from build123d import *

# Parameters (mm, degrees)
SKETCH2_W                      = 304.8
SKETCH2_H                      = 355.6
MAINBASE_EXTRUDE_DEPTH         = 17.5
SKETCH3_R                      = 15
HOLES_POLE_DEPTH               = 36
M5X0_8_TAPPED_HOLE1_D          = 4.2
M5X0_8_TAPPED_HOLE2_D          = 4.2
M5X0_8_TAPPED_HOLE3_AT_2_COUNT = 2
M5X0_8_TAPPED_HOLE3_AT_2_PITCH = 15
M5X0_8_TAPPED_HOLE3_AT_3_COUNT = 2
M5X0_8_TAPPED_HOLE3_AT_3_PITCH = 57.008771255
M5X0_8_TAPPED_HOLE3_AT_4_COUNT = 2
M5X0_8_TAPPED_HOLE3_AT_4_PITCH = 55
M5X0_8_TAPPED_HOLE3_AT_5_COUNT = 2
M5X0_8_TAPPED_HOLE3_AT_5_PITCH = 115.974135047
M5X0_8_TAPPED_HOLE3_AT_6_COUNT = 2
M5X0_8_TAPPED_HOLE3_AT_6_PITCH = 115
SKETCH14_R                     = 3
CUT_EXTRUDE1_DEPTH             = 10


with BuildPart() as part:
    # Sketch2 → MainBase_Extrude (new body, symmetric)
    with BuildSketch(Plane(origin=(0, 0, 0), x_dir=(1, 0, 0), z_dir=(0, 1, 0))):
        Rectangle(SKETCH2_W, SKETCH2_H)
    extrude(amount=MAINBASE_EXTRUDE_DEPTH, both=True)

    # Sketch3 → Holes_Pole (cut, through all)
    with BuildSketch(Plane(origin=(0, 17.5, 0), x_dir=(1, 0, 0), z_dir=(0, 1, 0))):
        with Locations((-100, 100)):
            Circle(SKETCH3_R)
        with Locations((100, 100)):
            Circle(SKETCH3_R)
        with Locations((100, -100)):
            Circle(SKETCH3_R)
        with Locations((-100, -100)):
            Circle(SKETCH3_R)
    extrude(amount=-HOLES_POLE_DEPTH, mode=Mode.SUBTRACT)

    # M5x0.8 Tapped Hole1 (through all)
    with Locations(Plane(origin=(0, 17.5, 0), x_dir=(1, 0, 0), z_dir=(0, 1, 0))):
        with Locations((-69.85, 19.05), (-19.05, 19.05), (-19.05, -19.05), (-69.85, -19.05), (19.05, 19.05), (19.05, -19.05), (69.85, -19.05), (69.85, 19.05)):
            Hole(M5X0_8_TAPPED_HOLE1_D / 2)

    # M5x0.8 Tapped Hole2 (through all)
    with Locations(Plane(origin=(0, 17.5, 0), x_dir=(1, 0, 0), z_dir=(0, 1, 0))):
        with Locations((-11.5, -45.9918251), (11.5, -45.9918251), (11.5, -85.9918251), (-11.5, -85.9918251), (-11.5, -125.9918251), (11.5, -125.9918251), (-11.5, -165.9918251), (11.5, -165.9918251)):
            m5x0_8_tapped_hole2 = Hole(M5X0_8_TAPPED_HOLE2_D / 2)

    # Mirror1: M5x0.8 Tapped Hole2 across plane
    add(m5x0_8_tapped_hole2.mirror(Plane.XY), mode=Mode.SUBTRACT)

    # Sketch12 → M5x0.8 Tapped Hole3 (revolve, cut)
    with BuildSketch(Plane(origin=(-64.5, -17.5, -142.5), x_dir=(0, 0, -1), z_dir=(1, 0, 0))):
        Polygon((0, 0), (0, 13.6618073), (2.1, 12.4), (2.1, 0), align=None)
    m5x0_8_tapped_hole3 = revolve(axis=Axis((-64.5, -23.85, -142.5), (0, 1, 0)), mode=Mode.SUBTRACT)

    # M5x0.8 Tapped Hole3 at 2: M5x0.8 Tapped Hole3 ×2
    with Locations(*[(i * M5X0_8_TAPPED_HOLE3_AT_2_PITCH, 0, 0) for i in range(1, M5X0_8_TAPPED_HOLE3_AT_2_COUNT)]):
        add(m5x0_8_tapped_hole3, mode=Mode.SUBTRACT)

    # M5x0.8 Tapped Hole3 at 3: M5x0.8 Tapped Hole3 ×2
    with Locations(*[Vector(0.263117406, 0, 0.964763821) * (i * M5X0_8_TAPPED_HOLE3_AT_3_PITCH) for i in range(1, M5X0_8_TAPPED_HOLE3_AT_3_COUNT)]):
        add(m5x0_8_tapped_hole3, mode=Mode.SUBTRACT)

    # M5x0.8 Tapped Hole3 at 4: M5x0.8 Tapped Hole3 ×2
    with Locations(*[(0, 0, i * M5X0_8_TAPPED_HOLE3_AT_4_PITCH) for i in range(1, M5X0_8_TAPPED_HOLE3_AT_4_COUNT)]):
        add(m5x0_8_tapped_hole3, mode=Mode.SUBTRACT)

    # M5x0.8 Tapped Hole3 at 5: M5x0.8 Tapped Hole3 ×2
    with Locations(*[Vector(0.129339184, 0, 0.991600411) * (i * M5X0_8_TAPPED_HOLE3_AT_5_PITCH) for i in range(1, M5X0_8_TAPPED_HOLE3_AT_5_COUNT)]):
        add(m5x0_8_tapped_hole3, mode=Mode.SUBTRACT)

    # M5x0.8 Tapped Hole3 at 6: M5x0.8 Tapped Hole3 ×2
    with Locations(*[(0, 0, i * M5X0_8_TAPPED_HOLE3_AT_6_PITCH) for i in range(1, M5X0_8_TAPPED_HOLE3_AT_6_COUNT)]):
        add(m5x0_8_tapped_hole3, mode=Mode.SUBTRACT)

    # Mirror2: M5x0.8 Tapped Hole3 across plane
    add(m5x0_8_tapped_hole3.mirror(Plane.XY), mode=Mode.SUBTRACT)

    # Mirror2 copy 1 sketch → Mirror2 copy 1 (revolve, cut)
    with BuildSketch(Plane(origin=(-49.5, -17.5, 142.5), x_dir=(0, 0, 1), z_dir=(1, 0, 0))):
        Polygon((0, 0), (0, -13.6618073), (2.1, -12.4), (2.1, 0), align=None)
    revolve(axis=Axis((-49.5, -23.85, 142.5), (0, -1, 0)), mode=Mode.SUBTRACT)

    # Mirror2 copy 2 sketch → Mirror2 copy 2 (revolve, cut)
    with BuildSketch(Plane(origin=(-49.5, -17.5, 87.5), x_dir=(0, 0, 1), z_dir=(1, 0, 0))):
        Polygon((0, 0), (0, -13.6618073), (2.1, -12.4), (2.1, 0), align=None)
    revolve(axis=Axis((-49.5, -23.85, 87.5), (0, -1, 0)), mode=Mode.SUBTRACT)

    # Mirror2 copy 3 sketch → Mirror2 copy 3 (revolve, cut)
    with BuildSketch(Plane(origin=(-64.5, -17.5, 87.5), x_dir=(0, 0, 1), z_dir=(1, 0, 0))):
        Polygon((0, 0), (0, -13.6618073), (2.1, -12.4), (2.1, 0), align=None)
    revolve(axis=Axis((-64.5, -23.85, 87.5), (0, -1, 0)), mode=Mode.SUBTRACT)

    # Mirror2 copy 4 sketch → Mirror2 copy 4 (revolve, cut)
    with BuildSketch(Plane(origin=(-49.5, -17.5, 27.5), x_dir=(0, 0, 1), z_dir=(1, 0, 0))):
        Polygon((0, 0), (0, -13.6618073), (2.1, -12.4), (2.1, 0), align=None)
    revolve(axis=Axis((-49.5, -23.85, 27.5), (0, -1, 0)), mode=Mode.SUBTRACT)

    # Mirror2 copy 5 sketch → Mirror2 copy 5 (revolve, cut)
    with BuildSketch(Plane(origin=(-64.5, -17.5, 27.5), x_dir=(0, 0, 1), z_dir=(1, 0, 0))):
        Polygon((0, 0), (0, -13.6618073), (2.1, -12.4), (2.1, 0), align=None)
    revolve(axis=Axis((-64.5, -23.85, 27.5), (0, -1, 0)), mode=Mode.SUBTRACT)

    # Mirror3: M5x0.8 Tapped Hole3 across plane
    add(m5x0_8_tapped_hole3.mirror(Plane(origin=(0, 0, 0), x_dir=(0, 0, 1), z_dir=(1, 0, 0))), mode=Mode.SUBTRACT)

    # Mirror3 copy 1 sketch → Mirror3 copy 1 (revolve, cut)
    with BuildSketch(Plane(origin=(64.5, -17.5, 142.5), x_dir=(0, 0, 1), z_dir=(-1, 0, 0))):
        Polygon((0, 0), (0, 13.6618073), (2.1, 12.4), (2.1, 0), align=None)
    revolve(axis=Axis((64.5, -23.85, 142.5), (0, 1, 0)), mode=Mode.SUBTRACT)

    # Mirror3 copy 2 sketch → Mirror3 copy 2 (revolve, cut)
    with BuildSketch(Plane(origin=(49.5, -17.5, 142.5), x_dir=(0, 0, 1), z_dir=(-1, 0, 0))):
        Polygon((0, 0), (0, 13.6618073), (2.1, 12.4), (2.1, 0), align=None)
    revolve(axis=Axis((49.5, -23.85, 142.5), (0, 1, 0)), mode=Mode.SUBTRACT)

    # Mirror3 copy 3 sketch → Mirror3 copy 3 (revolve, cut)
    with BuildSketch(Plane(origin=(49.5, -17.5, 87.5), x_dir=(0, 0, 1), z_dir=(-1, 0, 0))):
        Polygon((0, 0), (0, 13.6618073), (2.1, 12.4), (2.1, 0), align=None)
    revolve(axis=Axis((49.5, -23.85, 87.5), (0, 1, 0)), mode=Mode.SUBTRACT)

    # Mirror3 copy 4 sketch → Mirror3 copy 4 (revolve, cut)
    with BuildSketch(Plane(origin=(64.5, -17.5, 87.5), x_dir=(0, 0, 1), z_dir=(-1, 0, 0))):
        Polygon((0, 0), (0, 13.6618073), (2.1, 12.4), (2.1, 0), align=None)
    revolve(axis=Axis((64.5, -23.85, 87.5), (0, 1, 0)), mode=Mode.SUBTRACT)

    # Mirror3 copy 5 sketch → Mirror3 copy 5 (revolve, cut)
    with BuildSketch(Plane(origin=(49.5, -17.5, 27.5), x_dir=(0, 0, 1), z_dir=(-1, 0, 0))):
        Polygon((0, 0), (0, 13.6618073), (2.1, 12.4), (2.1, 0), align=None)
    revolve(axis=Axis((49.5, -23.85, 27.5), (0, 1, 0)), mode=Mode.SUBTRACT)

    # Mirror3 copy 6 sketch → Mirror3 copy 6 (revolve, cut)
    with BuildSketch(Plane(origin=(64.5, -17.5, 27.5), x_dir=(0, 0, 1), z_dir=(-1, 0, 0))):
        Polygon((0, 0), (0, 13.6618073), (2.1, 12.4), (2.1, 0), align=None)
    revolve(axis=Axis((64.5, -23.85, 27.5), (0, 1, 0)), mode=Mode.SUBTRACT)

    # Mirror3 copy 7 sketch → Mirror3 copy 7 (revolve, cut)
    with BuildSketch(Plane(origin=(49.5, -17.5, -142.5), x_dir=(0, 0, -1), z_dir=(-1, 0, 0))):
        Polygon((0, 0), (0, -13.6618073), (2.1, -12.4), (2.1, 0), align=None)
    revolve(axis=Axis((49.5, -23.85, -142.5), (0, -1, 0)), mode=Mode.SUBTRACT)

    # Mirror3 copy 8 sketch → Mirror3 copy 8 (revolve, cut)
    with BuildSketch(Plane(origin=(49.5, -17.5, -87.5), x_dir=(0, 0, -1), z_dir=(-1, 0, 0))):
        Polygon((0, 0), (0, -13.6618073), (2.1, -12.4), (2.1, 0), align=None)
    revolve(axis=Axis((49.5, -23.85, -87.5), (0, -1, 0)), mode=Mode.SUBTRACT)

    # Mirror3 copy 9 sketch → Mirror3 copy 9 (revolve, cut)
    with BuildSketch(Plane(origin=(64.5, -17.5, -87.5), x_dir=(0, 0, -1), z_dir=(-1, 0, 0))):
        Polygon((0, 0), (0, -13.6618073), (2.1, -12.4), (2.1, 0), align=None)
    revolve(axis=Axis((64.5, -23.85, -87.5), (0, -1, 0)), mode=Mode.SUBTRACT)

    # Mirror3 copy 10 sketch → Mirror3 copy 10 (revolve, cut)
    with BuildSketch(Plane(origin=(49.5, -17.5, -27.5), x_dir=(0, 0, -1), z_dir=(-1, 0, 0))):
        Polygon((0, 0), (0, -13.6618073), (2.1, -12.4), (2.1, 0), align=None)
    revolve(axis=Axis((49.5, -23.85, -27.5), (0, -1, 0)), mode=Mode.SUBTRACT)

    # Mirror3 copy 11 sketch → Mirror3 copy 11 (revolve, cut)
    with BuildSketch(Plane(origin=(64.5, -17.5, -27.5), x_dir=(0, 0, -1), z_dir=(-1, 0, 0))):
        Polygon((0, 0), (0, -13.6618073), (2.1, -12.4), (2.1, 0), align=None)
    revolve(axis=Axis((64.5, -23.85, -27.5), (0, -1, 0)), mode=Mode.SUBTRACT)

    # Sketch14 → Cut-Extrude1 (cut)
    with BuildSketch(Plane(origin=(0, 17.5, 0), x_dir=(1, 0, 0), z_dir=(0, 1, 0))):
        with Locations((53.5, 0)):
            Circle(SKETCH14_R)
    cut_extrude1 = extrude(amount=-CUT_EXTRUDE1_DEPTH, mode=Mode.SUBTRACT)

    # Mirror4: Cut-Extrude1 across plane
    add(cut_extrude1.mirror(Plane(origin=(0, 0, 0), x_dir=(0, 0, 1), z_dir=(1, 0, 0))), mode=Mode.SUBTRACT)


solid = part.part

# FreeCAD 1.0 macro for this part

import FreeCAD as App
import Part
import Sketcher
Q = App.Units.Quantity

doc = App.newDocument("Part")
body = doc.addObject("PartDesign::Body", "Body")

sketch1 = body.newObject("Sketcher::SketchObject", "Sketch")
sketch1.AttachmentSupport = (doc.getObject("XZ_Plane"), [""])
sketch1.MapMode = "FlatFace"
sketch1.addGeometry([
    Part.LineSegment(App.Vector(-152.4, -177.8, 0), App.Vector(-152.4, 177.8, 0)),
    Part.LineSegment(App.Vector(-152.4, 177.8, 0), App.Vector(152.4, 177.8, 0)),
    Part.LineSegment(App.Vector(152.4, 177.8, 0), App.Vector(152.4, -177.8, 0)),
    Part.LineSegment(App.Vector(152.4, -177.8, 0), App.Vector(-152.4, -177.8, 0)),
], False)
sketch1.addConstraint([
    Sketcher.Constraint("Coincident", 0, 2, 1, 1),
    Sketcher.Constraint("Coincident", 1, 2, 2, 1),
    Sketcher.Constraint("Coincident", 2, 2, 3, 1),
    Sketcher.Constraint("Coincident", 3, 2, 0, 1),
    Sketcher.Constraint("Vertical", 0),
    Sketcher.Constraint("Horizontal", 1),
    Sketcher.Constraint("Vertical", 2),
    Sketcher.Constraint("Horizontal", 3),
    Sketcher.Constraint("Symmetric", 0, 2, 2, 2, -1, 1),
    Sketcher.Constraint("DistanceX", 1, 1, 1, 2, Q("304.8 mm")),
    Sketcher.Constraint("DistanceY", 0, 1, 0, 2, Q("355.6 mm")),
])
pad1 = body.newObject("PartDesign::Pad", "Pad")
pad1.Profile = sketch1
pad1.Length = 35
pad1.Midplane = True

sketch2 = body.newObject("Sketcher::SketchObject", "Sketch001")
sketch2.AttachmentSupport = (doc.getObject("XZ_Plane"), [""])
sketch2.MapMode = "FlatFace"
sketch2.AttachmentOffset = App.Placement(App.Vector(0, 0, -17.5), App.Rotation())
sketch2.addGeometry([
    Part.Circle(App.Vector(-100, -100, 0), App.Vector(0, 0, 1), 15),
    Part.Circle(App.Vector(100, -100, 0), App.Vector(0, 0, 1), 15),
    Part.Circle(App.Vector(100, 100, 0), App.Vector(0, 0, 1), 15),
    Part.Circle(App.Vector(-100, 100, 0), App.Vector(0, 0, 1), 15),
], False)
sketch2.addConstraint([
    Sketcher.Constraint("Equal", 0, 1),
    Sketcher.Constraint("Equal", 1, 2),
    Sketcher.Constraint("Equal", 2, 3),
    Sketcher.Constraint("Symmetric", 0, 3, 2, 3, -1, 1),
    Sketcher.Constraint("Symmetric", 1, 3, 3, 3, -1, 1),
    Sketcher.Constraint("Symmetric", 0, 3, 1, 3, -2),
    Sketcher.Constraint("Diameter", 0, Q("30 mm")),
    Sketcher.Constraint("DistanceX", 0, 3, -1, 1, Q("100 mm")),
    Sketcher.Constraint("DistanceY", 0, 3, -1, 1, Q("100 mm")),
])
pocket1 = body.newObject("PartDesign::Pocket", "Pocket")
pocket1.Profile = sketch2
pocket1.Type = "ThroughAll"
pocket1.Reversed = True

sketch3 = body.newObject("Sketcher::SketchObject", "Sketch002")
sketch3.AttachmentSupport = (doc.getObject("XZ_Plane"), [""])
sketch3.MapMode = "FlatFace"
sketch3.AttachmentOffset = App.Placement(App.Vector(0, 0, -17.5), App.Rotation())
sketch3.addGeometry([
    Part.Circle(App.Vector(-69.85, -19.05, 0), App.Vector(0, 0, 1), 2.1),
    Part.Circle(App.Vector(-19.05, -19.05, 0), App.Vector(0, 0, 1), 2.1),
    Part.Circle(App.Vector(-19.05, 19.05, 0), App.Vector(0, 0, 1), 2.1),
    Part.Circle(App.Vector(-69.85, 19.05, 0), App.Vector(0, 0, 1), 2.1),
    Part.Circle(App.Vector(19.05, -19.05, 0), App.Vector(0, 0, 1), 2.1),
    Part.Circle(App.Vector(19.05, 19.05, 0), App.Vector(0, 0, 1), 2.1),
    Part.Circle(App.Vector(69.85, 19.05, 0), App.Vector(0, 0, 1), 2.1),
    Part.Circle(App.Vector(69.85, -19.05, 0), App.Vector(0, 0, 1), 2.1),
], False)
sketch3.addConstraint([
    Sketcher.Constraint("Equal", 0, 1),
    Sketcher.Constraint("Equal", 1, 2),
    Sketcher.Constraint("Equal", 2, 3),
    Sketcher.Constraint("Equal", 3, 4),
    Sketcher.Constraint("Equal", 4, 5),
    Sketcher.Constraint("Equal", 5, 6),
    Sketcher.Constraint("Equal", 6, 7),
    Sketcher.Constraint("Symmetric", 2, 3, 4, 3, -1, 1),
    Sketcher.Constraint("Symmetric", 1, 3, 5, 3, -1, 1),
    Sketcher.Constraint("Symmetric", 0, 3, 6, 3, -1, 1),
    Sketcher.Constraint("Symmetric", 3, 3, 7, 3, -1, 1),
    Sketcher.Constraint("Symmetric", 1, 3, 4, 3, -2),
    Sketcher.Constraint("Symmetric", 3, 3, 6, 3, -2),
    Sketcher.Constraint("Horizontal", 0, 3, 1, 3),
    Sketcher.Constraint("Diameter", 0, Q("4.2 mm")),
    Sketcher.Constraint("DistanceX", 0, 3, 1, 3, Q("50.8 mm")),
    Sketcher.Constraint("DistanceY", 1, 3, 2, 3, Q("38.1 mm")),
    Sketcher.Constraint("DistanceX", 1, 3, 4, 3, Q("38.1 mm")),
])
doc.recompute()
hole = body.newObject("PartDesign::Hole", "Hole")
hole.Profile = sketch3
hole.ThreadType = "None"
hole.Diameter = 4.2
hole.DepthType = "ThroughAll"
hole.Reversed = True

sketch4 = body.newObject("Sketcher::SketchObject", "Sketch003")
sketch4.AttachmentSupport = (doc.getObject("XZ_Plane"), [""])
sketch4.MapMode = "FlatFace"
sketch4.AttachmentOffset = App.Placement(App.Vector(0, 0, -17.5), App.Rotation())
sketch4.addGeometry([
    Part.Circle(App.Vector(-11.5, 45.991825, 0), App.Vector(0, 0, 1), 2.1),
    Part.Circle(App.Vector(11.5, 45.991825, 0), App.Vector(0, 0, 1), 2.1),
    Part.Circle(App.Vector(11.5, 85.991825, 0), App.Vector(0, 0, 1), 2.1),
    Part.Circle(App.Vector(-11.5, 85.991825, 0), App.Vector(0, 0, 1), 2.1),
    Part.Circle(App.Vector(-11.5, 125.991825, 0), App.Vector(0, 0, 1), 2.1),
    Part.Circle(App.Vector(11.5, 125.991825, 0), App.Vector(0, 0, 1), 2.1),
    Part.Circle(App.Vector(-11.5, 165.991825, 0), App.Vector(0, 0, 1), 2.1),
    Part.Circle(App.Vector(11.5, 165.991825, 0), App.Vector(0, 0, 1), 2.1),
], False)
sketch4.addConstraint([
    Sketcher.Constraint("Equal", 0, 1),
    Sketcher.Constraint("Equal", 1, 2),
    Sketcher.Constraint("Equal", 2, 3),
    Sketcher.Constraint("Equal", 3, 4),
    Sketcher.Constraint("Equal", 4, 5),
    Sketcher.Constraint("Equal", 5, 6),
    Sketcher.Constraint("Equal", 6, 7),
    Sketcher.Constraint("Symmetric", 0, 3, 1, 3, -2),
    Sketcher.Constraint("Symmetric", 2, 3, 3, 3, -2),
    Sketcher.Constraint("Symmetric", 4, 3, 5, 3, -2),
    Sketcher.Constraint("Symmetric", 6, 3, 7, 3, -2),
    Sketcher.Constraint("Vertical", 1, 3, 2, 3),
    Sketcher.Constraint("Vertical", 3, 3, 4, 3),
    Sketcher.Constraint("Vertical", 4, 3, 6, 3),
    Sketcher.Constraint("Diameter", 0, Q("4.2 mm")),
    Sketcher.Constraint("DistanceX", 0, 3, 1, 3, Q("23 mm")),
    Sketcher.Constraint("DistanceY", 1, 3, 2, 3, Q("40 mm")),
    Sketcher.Constraint("DistanceY", 3, 3, 4, 3, Q("40 mm")),
    Sketcher.Constraint("DistanceY", 4, 3, 6, 3, Q("40 mm")),
    Sketcher.Constraint("DistanceY", -1, 1, 0, 3, Q("45.991825 mm")),
])
doc.recompute()
hole2 = body.newObject("PartDesign::Hole", "Hole001")
hole2.Profile = sketch4
hole2.ThreadType = "None"
hole2.Diameter = 4.2
hole2.DepthType = "ThroughAll"
hole2.Reversed = True
doc.recompute()

mirrored = body.newObject("PartDesign::Mirrored", "Mirrored")
mirrored.Originals = [hole2]
mirrored.MirrorPlane = (doc.getObject("XY_Plane"), [""])
body.Tip = mirrored

sketch5 = body.newObject("Sketcher::SketchObject", "Sketch004")
sketch5.AttachmentSupport = (doc.getObject("YZ_Plane"), [""])
sketch5.MapMode = "FlatFace"
sketch5.AttachmentOffset = App.Placement(App.Vector(0, 0, -64.5), App.Rotation())
sketch5.addGeometry([
    Part.LineSegment(App.Vector(-3.838193, -142.5, 0), App.Vector(-17.5, -142.5, 0)),
    Part.LineSegment(App.Vector(-17.5, -142.5, 0), App.Vector(-17.5, -144.6, 0)),
    Part.LineSegment(App.Vector(-17.5, -144.6, 0), App.Vector(-5.1, -144.6, 0)),
    Part.LineSegment(App.Vector(-5.1, -144.6, 0), App.Vector(-3.838193, -142.5, 0)),
], False)
sketch5.addGeometry(Part.LineSegment(App.Vector(-17.5, -142.5, 0), App.Vector(-3.838193, -142.5, 0)), True)
sketch5.addConstraint([
    Sketcher.Constraint("Coincident", 0, 2, 1, 1),
    Sketcher.Constraint("Coincident", 1, 2, 2, 1),
    Sketcher.Constraint("Coincident", 2, 2, 3, 1),
    Sketcher.Constraint("Coincident", 3, 2, 0, 1),
    Sketcher.Constraint("Horizontal", 0),
    Sketcher.Constraint("Vertical", 1),
    Sketcher.Constraint("Horizontal", 2),
    Sketcher.Constraint("Horizontal", 4),
    Sketcher.Constraint("Coincident", 4, 1, 0, 2),
    Sketcher.Constraint("Equal", 0, 4),
    Sketcher.Constraint("Angle", 3, Q("59 deg")),
    Sketcher.Constraint("DistanceX", 2, 1, 2, 2, Q("12.4 mm")),
    Sketcher.Constraint("DistanceY", 1, 2, 1, 1, Q("2.1 mm")),
    Sketcher.Constraint("DistanceX", 0, 2, -1, 1, Q("17.5 mm")),
    Sketcher.Constraint("DistanceY", 0, 2, -1, 1, Q("142.5 mm")),
])
groove = body.newObject("PartDesign::Groove", "Groove")
groove.Profile = sketch5
groove.ReferenceAxis = (sketch5, ["Axis0"])
groove.Angle = 360
doc.recompute()

linearpattern = body.newObject("PartDesign::LinearPattern", "LinearPattern")
linearpattern.Originals = [groove]
linearpattern.Direction = (doc.getObject("X_Axis"), [""])
linearpattern.Mode = "offset"
linearpattern.Offset = 15
linearpattern.Occurrences = 2
body.Tip = linearpattern
doc.recompute()

datumline = body.newObject("PartDesign::Line", "DatumLine")
datumline.Placement = App.Placement(App.Vector(0, 0, 0), App.Rotation(App.Vector(0, 0, 1), App.Vector(0.263117406, 0, 0.964763821)))
linearpattern2 = body.newObject("PartDesign::LinearPattern", "LinearPattern001")
linearpattern2.Originals = [groove]
linearpattern2.Direction = (datumline, [""])
linearpattern2.Mode = "offset"
linearpattern2.Offset = 57.008771
linearpattern2.Occurrences = 2
body.Tip = linearpattern2
doc.recompute()

linearpattern3 = body.newObject("PartDesign::LinearPattern", "LinearPattern002")
linearpattern3.Originals = [groove]
linearpattern3.Direction = (doc.getObject("Z_Axis"), [""])
linearpattern3.Mode = "offset"
linearpattern3.Offset = 55
linearpattern3.Occurrences = 2
body.Tip = linearpattern3
doc.recompute()

datumline2 = body.newObject("PartDesign::Line", "DatumLine001")
datumline2.Placement = App.Placement(App.Vector(0, 0, 0), App.Rotation(App.Vector(0, 0, 1), App.Vector(0.129339184, 0, 0.991600411)))
linearpattern4 = body.newObject("PartDesign::LinearPattern", "LinearPattern003")
linearpattern4.Originals = [groove]
linearpattern4.Direction = (datumline2, [""])
linearpattern4.Mode = "offset"
linearpattern4.Offset = 115.974135
linearpattern4.Occurrences = 2
body.Tip = linearpattern4
doc.recompute()

linearpattern5 = body.newObject("PartDesign::LinearPattern", "LinearPattern004")
linearpattern5.Originals = [groove]
linearpattern5.Direction = (doc.getObject("Z_Axis"), [""])
linearpattern5.Mode = "offset"
linearpattern5.Offset = 115
linearpattern5.Occurrences = 2
body.Tip = linearpattern5
doc.recompute()

mirrored2 = body.newObject("PartDesign::Mirrored", "Mirrored001")
mirrored2.Originals = [groove]
mirrored2.MirrorPlane = (doc.getObject("XY_Plane"), [""])
body.Tip = mirrored2

sketch6 = body.newObject("Sketcher::SketchObject", "Sketch005")
sketch6.AttachmentSupport = (doc.getObject("YZ_Plane"), [""])
sketch6.MapMode = "FlatFace"
sketch6.AttachmentOffset = App.Placement(App.Vector(0, 0, -49.5), App.Rotation())
sketch6.addGeometry([
    Part.LineSegment(App.Vector(-17.5, 142.5, 0), App.Vector(-3.838193, 142.5, 0)),
    Part.LineSegment(App.Vector(-3.838193, 142.5, 0), App.Vector(-5.1, 144.6, 0)),
    Part.LineSegment(App.Vector(-5.1, 144.6, 0), App.Vector(-17.5, 144.6, 0)),
    Part.LineSegment(App.Vector(-17.5, 144.6, 0), App.Vector(-17.5, 142.5, 0)),
], False)
sketch6.addGeometry(Part.LineSegment(App.Vector(-3.838193, 142.5, 0), App.Vector(-17.5, 142.5, 0)), True)
sketch6.addConstraint([
    Sketcher.Constraint("Coincident", 0, 2, 1, 1),
    Sketcher.Constraint("Coincident", 1, 2, 2, 1),
    Sketcher.Constraint("Coincident", 2, 2, 3, 1),
    Sketcher.Constraint("Coincident", 3, 2, 0, 1),
    Sketcher.Constraint("Horizontal", 0),
    Sketcher.Constraint("Horizontal", 2),
    Sketcher.Constraint("Vertical", 3),
    Sketcher.Constraint("Horizontal", 4),
    Sketcher.Constraint("Coincident", 4, 1, 0, 2),
    Sketcher.Constraint("Vertical", 2, 2, 4, 2),
    Sketcher.Constraint("Angle", 1, Q("121 deg")),
    Sketcher.Constraint("DistanceX", 2, 2, 2, 1, Q("12.4 mm")),
    Sketcher.Constraint("DistanceY", 3, 2, 3, 1, Q("2.1 mm")),
    Sketcher.Constraint("DistanceY", -1, 1, 0, 2, Q("142.5 mm")),
    Sketcher.Constraint("DistanceX", 1, 2, -1, 1, Q("5.1 mm")),
])
groove2 = body.newObject("PartDesign::Groove", "Groove001")
groove2.Profile = sketch6
groove2.ReferenceAxis = (sketch6, ["Axis0"])
groove2.Angle = 360

sketch7 = body.newObject("Sketcher::SketchObject", "Sketch006")
sketch7.AttachmentSupport = (doc.getObject("YZ_Plane"), [""])
sketch7.MapMode = "FlatFace"
sketch7.AttachmentOffset = App.Placement(App.Vector(0, 0, -49.5), App.Rotation())
sketch7.addGeometry([
    Part.LineSegment(App.Vector(-17.5, 87.5, 0), App.Vector(-3.838193, 87.5, 0)),
    Part.LineSegment(App.Vector(-3.838193, 87.5, 0), App.Vector(-5.1, 89.6, 0)),
    Part.LineSegment(App.Vector(-5.1, 89.6, 0), App.Vector(-17.5, 89.6, 0)),
    Part.LineSegment(App.Vector(-17.5, 89.6, 0), App.Vector(-17.5, 87.5, 0)),
], False)
sketch7.addGeometry(Part.LineSegment(App.Vector(-3.838193, 87.5, 0), App.Vector(-17.5, 87.5, 0)), True)
sketch7.addConstraint([
    Sketcher.Constraint("Coincident", 0, 2, 1, 1),
    Sketcher.Constraint("Coincident", 1, 2, 2, 1),
    Sketcher.Constraint("Coincident", 2, 2, 3, 1),
    Sketcher.Constraint("Coincident", 3, 2, 0, 1),
    Sketcher.Constraint("Horizontal", 0),
    Sketcher.Constraint("Horizontal", 2),
    Sketcher.Constraint("Vertical", 3),
    Sketcher.Constraint("Horizontal", 4),
    Sketcher.Constraint("Coincident", 4, 1, 0, 2),
    Sketcher.Constraint("Vertical", 2, 2, 4, 2),
    Sketcher.Constraint("Angle", 1, Q("121 deg")),
    Sketcher.Constraint("DistanceX", 2, 2, 2, 1, Q("12.4 mm")),
    Sketcher.Constraint("DistanceY", 3, 2, 3, 1, Q("2.1 mm")),
    Sketcher.Constraint("DistanceY", -1, 1, 0, 2, Q("87.5 mm")),
    Sketcher.Constraint("DistanceX", 1, 2, -1, 1, Q("5.1 mm")),
])
groove3 = body.newObject("PartDesign::Groove", "Groove002")
groove3.Profile = sketch7
groove3.ReferenceAxis = (sketch7, ["Axis0"])
groove3.Angle = 360

sketch8 = body.newObject("Sketcher::SketchObject", "Sketch007")
sketch8.AttachmentSupport = (doc.getObject("YZ_Plane"), [""])
sketch8.MapMode = "FlatFace"
sketch8.AttachmentOffset = App.Placement(App.Vector(0, 0, -64.5), App.Rotation())
sketch8.addGeometry([
    Part.LineSegment(App.Vector(-17.5, 87.5, 0), App.Vector(-3.838193, 87.5, 0)),
    Part.LineSegment(App.Vector(-3.838193, 87.5, 0), App.Vector(-5.1, 89.6, 0)),
    Part.LineSegment(App.Vector(-5.1, 89.6, 0), App.Vector(-17.5, 89.6, 0)),
    Part.LineSegment(App.Vector(-17.5, 89.6, 0), App.Vector(-17.5, 87.5, 0)),
], False)
sketch8.addGeometry(Part.LineSegment(App.Vector(-3.838193, 87.5, 0), App.Vector(-17.5, 87.5, 0)), True)
sketch8.addConstraint([
    Sketcher.Constraint("Coincident", 0, 2, 1, 1),
    Sketcher.Constraint("Coincident", 1, 2, 2, 1),
    Sketcher.Constraint("Coincident", 2, 2, 3, 1),
    Sketcher.Constraint("Coincident", 3, 2, 0, 1),
    Sketcher.Constraint("Horizontal", 0),
    Sketcher.Constraint("Horizontal", 2),
    Sketcher.Constraint("Vertical", 3),
    Sketcher.Constraint("Horizontal", 4),
    Sketcher.Constraint("Coincident", 4, 1, 0, 2),
    Sketcher.Constraint("Vertical", 2, 2, 4, 2),
    Sketcher.Constraint("Angle", 1, Q("121 deg")),
    Sketcher.Constraint("DistanceX", 2, 2, 2, 1, Q("12.4 mm")),
    Sketcher.Constraint("DistanceY", 3, 2, 3, 1, Q("2.1 mm")),
    Sketcher.Constraint("DistanceY", -1, 1, 0, 2, Q("87.5 mm")),
    Sketcher.Constraint("DistanceX", 1, 2, -1, 1, Q("5.1 mm")),
])
groove4 = body.newObject("PartDesign::Groove", "Groove003")
groove4.Profile = sketch8
groove4.ReferenceAxis = (sketch8, ["Axis0"])
groove4.Angle = 360

sketch9 = body.newObject("Sketcher::SketchObject", "Sketch008")
sketch9.AttachmentSupport = (doc.getObject("YZ_Plane"), [""])
sketch9.MapMode = "FlatFace"
sketch9.AttachmentOffset = App.Placement(App.Vector(0, 0, -49.5), App.Rotation())
sketch9.addGeometry([
    Part.LineSegment(App.Vector(-17.5, 27.5, 0), App.Vector(-3.838193, 27.5, 0)),
    Part.LineSegment(App.Vector(-3.838193, 27.5, 0), App.Vector(-5.1, 29.6, 0)),
    Part.LineSegment(App.Vector(-5.1, 29.6, 0), App.Vector(-17.5, 29.6, 0)),
    Part.LineSegment(App.Vector(-17.5, 29.6, 0), App.Vector(-17.5, 27.5, 0)),
], False)
sketch9.addGeometry(Part.LineSegment(App.Vector(-3.838193, 27.5, 0), App.Vector(-17.5, 27.5, 0)), True)
sketch9.addConstraint([
    Sketcher.Constraint("Coincident", 0, 2, 1, 1),
    Sketcher.Constraint("Coincident", 1, 2, 2, 1),
    Sketcher.Constraint("Coincident", 2, 2, 3, 1),
    Sketcher.Constraint("Coincident", 3, 2, 0, 1),
    Sketcher.Constraint("Horizontal", 0),
    Sketcher.Constraint("Horizontal", 2),
    Sketcher.Constraint("Vertical", 3),
    Sketcher.Constraint("Horizontal", 4),
    Sketcher.Constraint("Coincident", 4, 1, 0, 2),
    Sketcher.Constraint("Vertical", 2, 2, 4, 2),
    Sketcher.Constraint("Angle", 1, Q("121 deg")),
    Sketcher.Constraint("DistanceX", 2, 2, 2, 1, Q("12.4 mm")),
    Sketcher.Constraint("DistanceY", 3, 2, 3, 1, Q("2.1 mm")),
    Sketcher.Constraint("DistanceY", -1, 1, 0, 2, Q("27.5 mm")),
    Sketcher.Constraint("DistanceX", 1, 2, -1, 1, Q("5.1 mm")),
])
groove5 = body.newObject("PartDesign::Groove", "Groove004")
groove5.Profile = sketch9
groove5.ReferenceAxis = (sketch9, ["Axis0"])
groove5.Angle = 360

sketch10 = body.newObject("Sketcher::SketchObject", "Sketch009")
sketch10.AttachmentSupport = (doc.getObject("YZ_Plane"), [""])
sketch10.MapMode = "FlatFace"
sketch10.AttachmentOffset = App.Placement(App.Vector(0, 0, -64.5), App.Rotation())
sketch10.addGeometry([
    Part.LineSegment(App.Vector(-17.5, 27.5, 0), App.Vector(-3.838193, 27.5, 0)),
    Part.LineSegment(App.Vector(-3.838193, 27.5, 0), App.Vector(-5.1, 29.6, 0)),
    Part.LineSegment(App.Vector(-5.1, 29.6, 0), App.Vector(-17.5, 29.6, 0)),
    Part.LineSegment(App.Vector(-17.5, 29.6, 0), App.Vector(-17.5, 27.5, 0)),
], False)
sketch10.addGeometry(Part.LineSegment(App.Vector(-3.838193, 27.5, 0), App.Vector(-17.5, 27.5, 0)), True)
sketch10.addConstraint([
    Sketcher.Constraint("Coincident", 0, 2, 1, 1),
    Sketcher.Constraint("Coincident", 1, 2, 2, 1),
    Sketcher.Constraint("Coincident", 2, 2, 3, 1),
    Sketcher.Constraint("Coincident", 3, 2, 0, 1),
    Sketcher.Constraint("Horizontal", 0),
    Sketcher.Constraint("Horizontal", 2),
    Sketcher.Constraint("Vertical", 3),
    Sketcher.Constraint("Horizontal", 4),
    Sketcher.Constraint("Coincident", 4, 1, 0, 2),
    Sketcher.Constraint("Vertical", 2, 2, 4, 2),
    Sketcher.Constraint("Angle", 1, Q("121 deg")),
    Sketcher.Constraint("DistanceX", 2, 2, 2, 1, Q("12.4 mm")),
    Sketcher.Constraint("DistanceY", 3, 2, 3, 1, Q("2.1 mm")),
    Sketcher.Constraint("DistanceY", -1, 1, 0, 2, Q("27.5 mm")),
    Sketcher.Constraint("DistanceX", 1, 2, -1, 1, Q("5.1 mm")),
])
groove6 = body.newObject("PartDesign::Groove", "Groove005")
groove6.Profile = sketch10
groove6.ReferenceAxis = (sketch10, ["Axis0"])
groove6.Angle = 360
doc.recompute()

mirrored3 = body.newObject("PartDesign::Mirrored", "Mirrored002")
mirrored3.Originals = [groove]
mirrored3.MirrorPlane = (doc.getObject("YZ_Plane"), [""])
body.Tip = mirrored3

sketch11 = body.newObject("Sketcher::SketchObject", "Sketch010")
sketch11.AttachmentSupport = (doc.getObject("YZ_Plane"), [""])
sketch11.MapMode = "FlatFace"
sketch11.AttachmentOffset = App.Placement(App.Vector(0, 0, 64.5), App.Rotation())
sketch11.addGeometry([
    Part.LineSegment(App.Vector(-3.838193, 142.5, 0), App.Vector(-17.5, 142.5, 0)),
    Part.LineSegment(App.Vector(-17.5, 142.5, 0), App.Vector(-17.5, 144.6, 0)),
    Part.LineSegment(App.Vector(-17.5, 144.6, 0), App.Vector(-5.1, 144.6, 0)),
    Part.LineSegment(App.Vector(-5.1, 144.6, 0), App.Vector(-3.838193, 142.5, 0)),
], False)
sketch11.addGeometry(Part.LineSegment(App.Vector(-17.5, 142.5, 0), App.Vector(-3.838193, 142.5, 0)), True)
sketch11.addConstraint([
    Sketcher.Constraint("Coincident", 0, 2, 1, 1),
    Sketcher.Constraint("Coincident", 1, 2, 2, 1),
    Sketcher.Constraint("Coincident", 2, 2, 3, 1),
    Sketcher.Constraint("Coincident", 3, 2, 0, 1),
    Sketcher.Constraint("Horizontal", 0),
    Sketcher.Constraint("Vertical", 1),
    Sketcher.Constraint("Horizontal", 2),
    Sketcher.Constraint("Horizontal", 4),
    Sketcher.Constraint("Coincident", 4, 1, 0, 2),
    Sketcher.Constraint("Equal", 0, 4),
    Sketcher.Constraint("Angle", 3, Q("-59 deg")),
    Sketcher.Constraint("DistanceX", 2, 1, 2, 2, Q("12.4 mm")),
    Sketcher.Constraint("DistanceY", 1, 1, 1, 2, Q("2.1 mm")),
    Sketcher.Constraint("DistanceX", 0, 2, -1, 1, Q("17.5 mm")),
    Sketcher.Constraint("DistanceY", -1, 1, 0, 2, Q("142.5 mm")),
])
groove7 = body.newObject("PartDesign::Groove", "Groove006")
groove7.Profile = sketch11
groove7.ReferenceAxis = (sketch11, ["Axis0"])
groove7.Angle = 360

sketch12 = body.newObject("Sketcher::SketchObject", "Sketch011")
sketch12.AttachmentSupport = (doc.getObject("YZ_Plane"), [""])
sketch12.MapMode = "FlatFace"
sketch12.AttachmentOffset = App.Placement(App.Vector(0, 0, 49.5), App.Rotation())
sketch12.addGeometry([
    Part.LineSegment(App.Vector(-3.838193, 142.5, 0), App.Vector(-17.5, 142.5, 0)),
    Part.LineSegment(App.Vector(-17.5, 142.5, 0), App.Vector(-17.5, 144.6, 0)),
    Part.LineSegment(App.Vector(-17.5, 144.6, 0), App.Vector(-5.1, 144.6, 0)),
    Part.LineSegment(App.Vector(-5.1, 144.6, 0), App.Vector(-3.838193, 142.5, 0)),
], False)
sketch12.addGeometry(Part.LineSegment(App.Vector(-17.5, 142.5, 0), App.Vector(-3.838193, 142.5, 0)), True)
sketch12.addConstraint([
    Sketcher.Constraint("Coincident", 0, 2, 1, 1),
    Sketcher.Constraint("Coincident", 1, 2, 2, 1),
    Sketcher.Constraint("Coincident", 2, 2, 3, 1),
    Sketcher.Constraint("Coincident", 3, 2, 0, 1),
    Sketcher.Constraint("Horizontal", 0),
    Sketcher.Constraint("Vertical", 1),
    Sketcher.Constraint("Horizontal", 2),
    Sketcher.Constraint("Horizontal", 4),
    Sketcher.Constraint("Coincident", 4, 1, 0, 2),
    Sketcher.Constraint("Equal", 0, 4),
    Sketcher.Constraint("Angle", 3, Q("-59 deg")),
    Sketcher.Constraint("DistanceX", 2, 1, 2, 2, Q("12.4 mm")),
    Sketcher.Constraint("DistanceY", 1, 1, 1, 2, Q("2.1 mm")),
    Sketcher.Constraint("DistanceX", 0, 2, -1, 1, Q("17.5 mm")),
    Sketcher.Constraint("DistanceY", -1, 1, 0, 2, Q("142.5 mm")),
])
groove8 = body.newObject("PartDesign::Groove", "Groove007")
groove8.Profile = sketch12
groove8.ReferenceAxis = (sketch12, ["Axis0"])
groove8.Angle = 360

sketch13 = body.newObject("Sketcher::SketchObject", "Sketch012")
sketch13.AttachmentSupport = (doc.getObject("YZ_Plane"), [""])
sketch13.MapMode = "FlatFace"
sketch13.AttachmentOffset = App.Placement(App.Vector(0, 0, 49.5), App.Rotation())
sketch13.addGeometry([
    Part.LineSegment(App.Vector(-3.838193, 87.5, 0), App.Vector(-17.5, 87.5, 0)),
    Part.LineSegment(App.Vector(-17.5, 87.5, 0), App.Vector(-17.5, 89.6, 0)),
    Part.LineSegment(App.Vector(-17.5, 89.6, 0), App.Vector(-5.1, 89.6, 0)),
    Part.LineSegment(App.Vector(-5.1, 89.6, 0), App.Vector(-3.838193, 87.5, 0)),
], False)
sketch13.addGeometry(Part.LineSegment(App.Vector(-17.5, 87.5, 0), App.Vector(-3.838193, 87.5, 0)), True)
sketch13.addConstraint([
    Sketcher.Constraint("Coincident", 0, 2, 1, 1),
    Sketcher.Constraint("Coincident", 1, 2, 2, 1),
    Sketcher.Constraint("Coincident", 2, 2, 3, 1),
    Sketcher.Constraint("Coincident", 3, 2, 0, 1),
    Sketcher.Constraint("Horizontal", 0),
    Sketcher.Constraint("Vertical", 1),
    Sketcher.Constraint("Horizontal", 2),
    Sketcher.Constraint("Horizontal", 4),
    Sketcher.Constraint("Coincident", 4, 1, 0, 2),
    Sketcher.Constraint("Equal", 0, 4),
    Sketcher.Constraint("Angle", 3, Q("-59 deg")),
    Sketcher.Constraint("DistanceX", 2, 1, 2, 2, Q("12.4 mm")),
    Sketcher.Constraint("DistanceY", 1, 1, 1, 2, Q("2.1 mm")),
    Sketcher.Constraint("DistanceX", 0, 2, -1, 1, Q("17.5 mm")),
    Sketcher.Constraint("DistanceY", -1, 1, 0, 2, Q("87.5 mm")),
])
groove9 = body.newObject("PartDesign::Groove", "Groove008")
groove9.Profile = sketch13
groove9.ReferenceAxis = (sketch13, ["Axis0"])
groove9.Angle = 360

sketch14 = body.newObject("Sketcher::SketchObject", "Sketch013")
sketch14.AttachmentSupport = (doc.getObject("YZ_Plane"), [""])
sketch14.MapMode = "FlatFace"
sketch14.AttachmentOffset = App.Placement(App.Vector(0, 0, 64.5), App.Rotation())
sketch14.addGeometry([
    Part.LineSegment(App.Vector(-3.838193, 87.5, 0), App.Vector(-17.5, 87.5, 0)),
    Part.LineSegment(App.Vector(-17.5, 87.5, 0), App.Vector(-17.5, 89.6, 0)),
    Part.LineSegment(App.Vector(-17.5, 89.6, 0), App.Vector(-5.1, 89.6, 0)),
    Part.LineSegment(App.Vector(-5.1, 89.6, 0), App.Vector(-3.838193, 87.5, 0)),
], False)
sketch14.addGeometry(Part.LineSegment(App.Vector(-17.5, 87.5, 0), App.Vector(-3.838193, 87.5, 0)), True)
sketch14.addConstraint([
    Sketcher.Constraint("Coincident", 0, 2, 1, 1),
    Sketcher.Constraint("Coincident", 1, 2, 2, 1),
    Sketcher.Constraint("Coincident", 2, 2, 3, 1),
    Sketcher.Constraint("Coincident", 3, 2, 0, 1),
    Sketcher.Constraint("Horizontal", 0),
    Sketcher.Constraint("Vertical", 1),
    Sketcher.Constraint("Horizontal", 2),
    Sketcher.Constraint("Horizontal", 4),
    Sketcher.Constraint("Coincident", 4, 1, 0, 2),
    Sketcher.Constraint("Equal", 0, 4),
    Sketcher.Constraint("Angle", 3, Q("-59 deg")),
    Sketcher.Constraint("DistanceX", 2, 1, 2, 2, Q("12.4 mm")),
    Sketcher.Constraint("DistanceY", 1, 1, 1, 2, Q("2.1 mm")),
    Sketcher.Constraint("DistanceX", 0, 2, -1, 1, Q("17.5 mm")),
    Sketcher.Constraint("DistanceY", -1, 1, 0, 2, Q("87.5 mm")),
])
groove10 = body.newObject("PartDesign::Groove", "Groove009")
groove10.Profile = sketch14
groove10.ReferenceAxis = (sketch14, ["Axis0"])
groove10.Angle = 360

sketch15 = body.newObject("Sketcher::SketchObject", "Sketch014")
sketch15.AttachmentSupport = (doc.getObject("YZ_Plane"), [""])
sketch15.MapMode = "FlatFace"
sketch15.AttachmentOffset = App.Placement(App.Vector(0, 0, 49.5), App.Rotation())
sketch15.addGeometry([
    Part.LineSegment(App.Vector(-3.838193, 27.5, 0), App.Vector(-17.5, 27.5, 0)),
    Part.LineSegment(App.Vector(-17.5, 27.5, 0), App.Vector(-17.5, 29.6, 0)),
    Part.LineSegment(App.Vector(-17.5, 29.6, 0), App.Vector(-5.1, 29.6, 0)),
    Part.LineSegment(App.Vector(-5.1, 29.6, 0), App.Vector(-3.838193, 27.5, 0)),
], False)
sketch15.addGeometry(Part.LineSegment(App.Vector(-17.5, 27.5, 0), App.Vector(-3.838193, 27.5, 0)), True)
sketch15.addConstraint([
    Sketcher.Constraint("Coincident", 0, 2, 1, 1),
    Sketcher.Constraint("Coincident", 1, 2, 2, 1),
    Sketcher.Constraint("Coincident", 2, 2, 3, 1),
    Sketcher.Constraint("Coincident", 3, 2, 0, 1),
    Sketcher.Constraint("Horizontal", 0),
    Sketcher.Constraint("Vertical", 1),
    Sketcher.Constraint("Horizontal", 2),
    Sketcher.Constraint("Horizontal", 4),
    Sketcher.Constraint("Coincident", 4, 1, 0, 2),
    Sketcher.Constraint("Equal", 0, 4),
    Sketcher.Constraint("Angle", 3, Q("-59 deg")),
    Sketcher.Constraint("DistanceX", 2, 1, 2, 2, Q("12.4 mm")),
    Sketcher.Constraint("DistanceY", 1, 1, 1, 2, Q("2.1 mm")),
    Sketcher.Constraint("DistanceX", 0, 2, -1, 1, Q("17.5 mm")),
    Sketcher.Constraint("DistanceY", -1, 1, 0, 2, Q("27.5 mm")),
])
groove11 = body.newObject("PartDesign::Groove", "Groove010")
groove11.Profile = sketch15
groove11.ReferenceAxis = (sketch15, ["Axis0"])
groove11.Angle = 360

sketch16 = body.newObject("Sketcher::SketchObject", "Sketch015")
sketch16.AttachmentSupport = (doc.getObject("YZ_Plane"), [""])
sketch16.MapMode = "FlatFace"
sketch16.AttachmentOffset = App.Placement(App.Vector(0, 0, 64.5), App.Rotation())
sketch16.addGeometry([
    Part.LineSegment(App.Vector(-3.838193, 27.5, 0), App.Vector(-17.5, 27.5, 0)),
    Part.LineSegment(App.Vector(-17.5, 27.5, 0), App.Vector(-17.5, 29.6, 0)),
    Part.LineSegment(App.Vector(-17.5, 29.6, 0), App.Vector(-5.1, 29.6, 0)),
    Part.LineSegment(App.Vector(-5.1, 29.6, 0), App.Vector(-3.838193, 27.5, 0)),
], False)
sketch16.addGeometry(Part.LineSegment(App.Vector(-17.5, 27.5, 0), App.Vector(-3.838193, 27.5, 0)), True)
sketch16.addConstraint([
    Sketcher.Constraint("Coincident", 0, 2, 1, 1),
    Sketcher.Constraint("Coincident", 1, 2, 2, 1),
    Sketcher.Constraint("Coincident", 2, 2, 3, 1),
    Sketcher.Constraint("Coincident", 3, 2, 0, 1),
    Sketcher.Constraint("Horizontal", 0),
    Sketcher.Constraint("Vertical", 1),
    Sketcher.Constraint("Horizontal", 2),
    Sketcher.Constraint("Horizontal", 4),
    Sketcher.Constraint("Coincident", 4, 1, 0, 2),
    Sketcher.Constraint("Equal", 0, 4),
    Sketcher.Constraint("Angle", 3, Q("-59 deg")),
    Sketcher.Constraint("DistanceX", 2, 1, 2, 2, Q("12.4 mm")),
    Sketcher.Constraint("DistanceY", 1, 1, 1, 2, Q("2.1 mm")),
    Sketcher.Constraint("DistanceX", 0, 2, -1, 1, Q("17.5 mm")),
    Sketcher.Constraint("DistanceY", -1, 1, 0, 2, Q("27.5 mm")),
])
groove12 = body.newObject("PartDesign::Groove", "Groove011")
groove12.Profile = sketch16
groove12.ReferenceAxis = (sketch16, ["Axis0"])
groove12.Angle = 360

sketch17 = body.newObject("Sketcher::SketchObject", "Sketch016")
sketch17.AttachmentSupport = (doc.getObject("YZ_Plane"), [""])
sketch17.MapMode = "FlatFace"
sketch17.AttachmentOffset = App.Placement(App.Vector(0, 0, 49.5), App.Rotation())
sketch17.addGeometry([
    Part.LineSegment(App.Vector(-17.5, -142.5, 0), App.Vector(-3.838193, -142.5, 0)),
    Part.LineSegment(App.Vector(-3.838193, -142.5, 0), App.Vector(-5.1, -144.6, 0)),
    Part.LineSegment(App.Vector(-5.1, -144.6, 0), App.Vector(-17.5, -144.6, 0)),
    Part.LineSegment(App.Vector(-17.5, -144.6, 0), App.Vector(-17.5, -142.5, 0)),
], False)
sketch17.addGeometry(Part.LineSegment(App.Vector(-3.838193, -142.5, 0), App.Vector(-17.5, -142.5, 0)), True)
sketch17.addConstraint([
    Sketcher.Constraint("Coincident", 0, 2, 1, 1),
    Sketcher.Constraint("Coincident", 1, 2, 2, 1),
    Sketcher.Constraint("Coincident", 2, 2, 3, 1),
    Sketcher.Constraint("Coincident", 3, 2, 0, 1),
    Sketcher.Constraint("Horizontal", 0),
    Sketcher.Constraint("Horizontal", 2),
    Sketcher.Constraint("Vertical", 3),
    Sketcher.Constraint("Horizontal", 4),
    Sketcher.Constraint("Coincident", 4, 1, 0, 2),
    Sketcher.Constraint("Vertical", 2, 2, 4, 2),
    Sketcher.Constraint("Angle", 1, Q("-121 deg")),
    Sketcher.Constraint("DistanceX", 2, 2, 2, 1, Q("12.4 mm")),
    Sketcher.Constraint("DistanceY", 3, 1, 3, 2, Q("2.1 mm")),
    Sketcher.Constraint("DistanceY", 0, 2, -1, 1, Q("142.5 mm")),
    Sketcher.Constraint("DistanceX", 1, 2, -1, 1, Q("5.1 mm")),
])
groove13 = body.newObject("PartDesign::Groove", "Groove012")
groove13.Profile = sketch17
groove13.ReferenceAxis = (sketch17, ["Axis0"])
groove13.Angle = 360

sketch18 = body.newObject("Sketcher::SketchObject", "Sketch017")
sketch18.AttachmentSupport = (doc.getObject("YZ_Plane"), [""])
sketch18.MapMode = "FlatFace"
sketch18.AttachmentOffset = App.Placement(App.Vector(0, 0, 49.5), App.Rotation())
sketch18.addGeometry([
    Part.LineSegment(App.Vector(-17.5, -87.5, 0), App.Vector(-3.838193, -87.5, 0)),
    Part.LineSegment(App.Vector(-3.838193, -87.5, 0), App.Vector(-5.1, -89.6, 0)),
    Part.LineSegment(App.Vector(-5.1, -89.6, 0), App.Vector(-17.5, -89.6, 0)),
    Part.LineSegment(App.Vector(-17.5, -89.6, 0), App.Vector(-17.5, -87.5, 0)),
], False)
sketch18.addGeometry(Part.LineSegment(App.Vector(-3.838193, -87.5, 0), App.Vector(-17.5, -87.5, 0)), True)
sketch18.addConstraint([
    Sketcher.Constraint("Coincident", 0, 2, 1, 1),
    Sketcher.Constraint("Coincident", 1, 2, 2, 1),
    Sketcher.Constraint("Coincident", 2, 2, 3, 1),
    Sketcher.Constraint("Coincident", 3, 2, 0, 1),
    Sketcher.Constraint("Horizontal", 0),
    Sketcher.Constraint("Horizontal", 2),
    Sketcher.Constraint("Vertical", 3),
    Sketcher.Constraint("Horizontal", 4),
    Sketcher.Constraint("Coincident", 4, 1, 0, 2),
    Sketcher.Constraint("Vertical", 2, 2, 4, 2),
    Sketcher.Constraint("Angle", 1, Q("-121 deg")),
    Sketcher.Constraint("DistanceX", 2, 2, 2, 1, Q("12.4 mm")),
    Sketcher.Constraint("DistanceY", 3, 1, 3, 2, Q("2.1 mm")),
    Sketcher.Constraint("DistanceY", 0, 2, -1, 1, Q("87.5 mm")),
    Sketcher.Constraint("DistanceX", 1, 2, -1, 1, Q("5.1 mm")),
])
groove14 = body.newObject("PartDesign::Groove", "Groove013")
groove14.Profile = sketch18
groove14.ReferenceAxis = (sketch18, ["Axis0"])
groove14.Angle = 360

sketch19 = body.newObject("Sketcher::SketchObject", "Sketch018")
sketch19.AttachmentSupport = (doc.getObject("YZ_Plane"), [""])
sketch19.MapMode = "FlatFace"
sketch19.AttachmentOffset = App.Placement(App.Vector(0, 0, 64.5), App.Rotation())
sketch19.addGeometry([
    Part.LineSegment(App.Vector(-17.5, -87.5, 0), App.Vector(-3.838193, -87.5, 0)),
    Part.LineSegment(App.Vector(-3.838193, -87.5, 0), App.Vector(-5.1, -89.6, 0)),
    Part.LineSegment(App.Vector(-5.1, -89.6, 0), App.Vector(-17.5, -89.6, 0)),
    Part.LineSegment(App.Vector(-17.5, -89.6, 0), App.Vector(-17.5, -87.5, 0)),
], False)
sketch19.addGeometry(Part.LineSegment(App.Vector(-3.838193, -87.5, 0), App.Vector(-17.5, -87.5, 0)), True)
sketch19.addConstraint([
    Sketcher.Constraint("Coincident", 0, 2, 1, 1),
    Sketcher.Constraint("Coincident", 1, 2, 2, 1),
    Sketcher.Constraint("Coincident", 2, 2, 3, 1),
    Sketcher.Constraint("Coincident", 3, 2, 0, 1),
    Sketcher.Constraint("Horizontal", 0),
    Sketcher.Constraint("Horizontal", 2),
    Sketcher.Constraint("Vertical", 3),
    Sketcher.Constraint("Horizontal", 4),
    Sketcher.Constraint("Coincident", 4, 1, 0, 2),
    Sketcher.Constraint("Vertical", 2, 2, 4, 2),
    Sketcher.Constraint("Angle", 1, Q("-121 deg")),
    Sketcher.Constraint("DistanceX", 2, 2, 2, 1, Q("12.4 mm")),
    Sketcher.Constraint("DistanceY", 3, 1, 3, 2, Q("2.1 mm")),
    Sketcher.Constraint("DistanceY", 0, 2, -1, 1, Q("87.5 mm")),
    Sketcher.Constraint("DistanceX", 1, 2, -1, 1, Q("5.1 mm")),
])
groove15 = body.newObject("PartDesign::Groove", "Groove014")
groove15.Profile = sketch19
groove15.ReferenceAxis = (sketch19, ["Axis0"])
groove15.Angle = 360

sketch20 = body.newObject("Sketcher::SketchObject", "Sketch019")
sketch20.AttachmentSupport = (doc.getObject("YZ_Plane"), [""])
sketch20.MapMode = "FlatFace"
sketch20.AttachmentOffset = App.Placement(App.Vector(0, 0, 49.5), App.Rotation())
sketch20.addGeometry([
    Part.LineSegment(App.Vector(-17.5, -27.5, 0), App.Vector(-3.838193, -27.5, 0)),
    Part.LineSegment(App.Vector(-3.838193, -27.5, 0), App.Vector(-5.1, -29.6, 0)),
    Part.LineSegment(App.Vector(-5.1, -29.6, 0), App.Vector(-17.5, -29.6, 0)),
    Part.LineSegment(App.Vector(-17.5, -29.6, 0), App.Vector(-17.5, -27.5, 0)),
], False)
sketch20.addGeometry(Part.LineSegment(App.Vector(-3.838193, -27.5, 0), App.Vector(-17.5, -27.5, 0)), True)
sketch20.addConstraint([
    Sketcher.Constraint("Coincident", 0, 2, 1, 1),
    Sketcher.Constraint("Coincident", 1, 2, 2, 1),
    Sketcher.Constraint("Coincident", 2, 2, 3, 1),
    Sketcher.Constraint("Coincident", 3, 2, 0, 1),
    Sketcher.Constraint("Horizontal", 0),
    Sketcher.Constraint("Horizontal", 2),
    Sketcher.Constraint("Vertical", 3),
    Sketcher.Constraint("Horizontal", 4),
    Sketcher.Constraint("Coincident", 4, 1, 0, 2),
    Sketcher.Constraint("Vertical", 2, 2, 4, 2),
    Sketcher.Constraint("Angle", 1, Q("-121 deg")),
    Sketcher.Constraint("DistanceX", 2, 2, 2, 1, Q("12.4 mm")),
    Sketcher.Constraint("DistanceY", 3, 1, 3, 2, Q("2.1 mm")),
    Sketcher.Constraint("DistanceY", 0, 2, -1, 1, Q("27.5 mm")),
    Sketcher.Constraint("DistanceX", 1, 2, -1, 1, Q("5.1 mm")),
])
groove16 = body.newObject("PartDesign::Groove", "Groove015")
groove16.Profile = sketch20
groove16.ReferenceAxis = (sketch20, ["Axis0"])
groove16.Angle = 360

sketch21 = body.newObject("Sketcher::SketchObject", "Sketch020")
sketch21.AttachmentSupport = (doc.getObject("YZ_Plane"), [""])
sketch21.MapMode = "FlatFace"
sketch21.AttachmentOffset = App.Placement(App.Vector(0, 0, 64.5), App.Rotation())
sketch21.addGeometry([
    Part.LineSegment(App.Vector(-17.5, -27.5, 0), App.Vector(-3.838193, -27.5, 0)),
    Part.LineSegment(App.Vector(-3.838193, -27.5, 0), App.Vector(-5.1, -29.6, 0)),
    Part.LineSegment(App.Vector(-5.1, -29.6, 0), App.Vector(-17.5, -29.6, 0)),
    Part.LineSegment(App.Vector(-17.5, -29.6, 0), App.Vector(-17.5, -27.5, 0)),
], False)
sketch21.addGeometry(Part.LineSegment(App.Vector(-3.838193, -27.5, 0), App.Vector(-17.5, -27.5, 0)), True)
sketch21.addConstraint([
    Sketcher.Constraint("Coincident", 0, 2, 1, 1),
    Sketcher.Constraint("Coincident", 1, 2, 2, 1),
    Sketcher.Constraint("Coincident", 2, 2, 3, 1),
    Sketcher.Constraint("Coincident", 3, 2, 0, 1),
    Sketcher.Constraint("Horizontal", 0),
    Sketcher.Constraint("Horizontal", 2),
    Sketcher.Constraint("Vertical", 3),
    Sketcher.Constraint("Horizontal", 4),
    Sketcher.Constraint("Coincident", 4, 1, 0, 2),
    Sketcher.Constraint("Vertical", 2, 2, 4, 2),
    Sketcher.Constraint("Angle", 1, Q("-121 deg")),
    Sketcher.Constraint("DistanceX", 2, 2, 2, 1, Q("12.4 mm")),
    Sketcher.Constraint("DistanceY", 3, 1, 3, 2, Q("2.1 mm")),
    Sketcher.Constraint("DistanceY", 0, 2, -1, 1, Q("27.5 mm")),
    Sketcher.Constraint("DistanceX", 1, 2, -1, 1, Q("5.1 mm")),
])
groove17 = body.newObject("PartDesign::Groove", "Groove016")
groove17.Profile = sketch21
groove17.ReferenceAxis = (sketch21, ["Axis0"])
groove17.Angle = 360

sketch22 = body.newObject("Sketcher::SketchObject", "Sketch021")
sketch22.AttachmentSupport = (doc.getObject("XZ_Plane"), [""])
sketch22.MapMode = "FlatFace"
sketch22.AttachmentOffset = App.Placement(App.Vector(0, 0, -17.5), App.Rotation())
sketch22.addGeometry(Part.Circle(App.Vector(53.5, 0, 0), App.Vector(0, 0, 1), 3), False)
sketch22.addConstraint([
    Sketcher.Constraint("PointOnObject", 0, 3, -1),
    Sketcher.Constraint("Diameter", 0, Q("6 mm")),
    Sketcher.Constraint("DistanceX", -1, 1, 0, 3, Q("53.5 mm")),
])
pocket2 = body.newObject("PartDesign::Pocket", "Pocket001")
pocket2.Profile = sketch22
pocket2.Length = 10
pocket2.Reversed = True
doc.recompute()

mirrored4 = body.newObject("PartDesign::Mirrored", "Mirrored003")
mirrored4.Originals = [pocket2]
mirrored4.MirrorPlane = (doc.getObject("YZ_Plane"), [""])
body.Tip = mirrored4

doc.recompute()
